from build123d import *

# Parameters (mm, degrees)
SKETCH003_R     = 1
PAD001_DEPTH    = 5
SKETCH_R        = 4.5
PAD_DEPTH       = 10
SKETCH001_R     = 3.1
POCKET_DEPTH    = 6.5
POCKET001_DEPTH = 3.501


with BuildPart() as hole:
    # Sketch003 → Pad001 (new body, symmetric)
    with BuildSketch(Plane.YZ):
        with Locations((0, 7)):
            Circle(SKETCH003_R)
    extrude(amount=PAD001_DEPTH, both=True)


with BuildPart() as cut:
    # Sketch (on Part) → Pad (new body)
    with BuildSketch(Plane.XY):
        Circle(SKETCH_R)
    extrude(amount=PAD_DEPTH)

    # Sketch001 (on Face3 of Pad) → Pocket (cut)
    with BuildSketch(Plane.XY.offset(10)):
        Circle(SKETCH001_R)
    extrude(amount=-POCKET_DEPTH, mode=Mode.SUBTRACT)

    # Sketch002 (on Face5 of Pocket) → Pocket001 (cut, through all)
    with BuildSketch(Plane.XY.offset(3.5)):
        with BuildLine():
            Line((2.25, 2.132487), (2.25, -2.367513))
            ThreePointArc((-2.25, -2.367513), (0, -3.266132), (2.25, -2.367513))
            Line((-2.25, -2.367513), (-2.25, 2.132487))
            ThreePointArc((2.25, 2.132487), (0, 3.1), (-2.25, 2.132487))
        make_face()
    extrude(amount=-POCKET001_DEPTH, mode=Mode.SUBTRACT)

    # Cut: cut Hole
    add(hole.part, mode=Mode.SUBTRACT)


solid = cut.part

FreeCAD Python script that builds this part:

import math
import FreeCAD as App
import Part
import Sketcher
Q = App.Units.Quantity

doc = App.newDocument("Part")
body = doc.addObject("PartDesign::Body", "Body")

# Sketch on YZ plane
sketch1 = doc.addObject("Sketcher::SketchObject", "Sketch")
body.addObject(sketch1)
sketch1.AttachmentSupport = (doc.YZ_Plane, [""])
sketch1.MapMode = "FlatFace"
sketch1.addGeometry(Part.Circle(App.Vector(0, 7, 0), App.Vector(0, 0, 1), 1), False)
sketch1.addConstraint([
    Sketcher.Constraint("PointOnObject", 0, 3, -2),
    Sketcher.Constraint("Diameter", 0, Q("2 mm")),
    Sketcher.Constraint("DistanceY", -1, 1, 0, 3, Q("7 mm")),
])
pad1 = doc.addObject("PartDesign::Pad", "Pad")
body.addObject(pad1)
pad1.Profile = sketch1
pad1.Length = 10
pad1.Midplane = True
body2 = doc.addObject("PartDesign::Body", "Body001")

# Sketch on XY plane
sketch2 = doc.addObject("Sketcher::SketchObject", "Sketch001")
body2.addObject(sketch2)
sketch2.AttachmentSupport = (doc.getObject("XY_Plane001"), [""])
sketch2.MapMode = "FlatFace"
sketch2.addGeometry(Part.Circle(App.Vector(0, 0, 0), App.Vector(0, 0, 1), 4.5), False)
sketch2.addConstraint([
    Sketcher.Constraint("Coincident", 0, 3, -1, 1),
    Sketcher.Constraint("Diameter", 0, Q("9 mm")),
])
pad2 = doc.addObject("PartDesign::Pad", "Pad001")
body2.addObject(pad2)
pad2.Profile = sketch2
pad2.Length = 10

# Sketch on XY plane
sketch3 = doc.addObject("Sketcher::SketchObject", "Sketch002")
body2.addObject(sketch3)
sketch3.AttachmentSupport = (doc.getObject("XY_Plane001"), [""])
sketch3.MapMode = "FlatFace"
sketch3.AttachmentOffset = App.Placement(App.Vector(0, 0, 10), App.Rotation())
sketch3.addGeometry(Part.Circle(App.Vector(0, 0, 0), App.Vector(0, 0, 1), 3.1), False)
sketch3.addConstraint([
    Sketcher.Constraint("Coincident", 0, 3, -1, 1),
    Sketcher.Constraint("Diameter", 0, Q("6.2 mm")),
])
pocket1 = doc.addObject("PartDesign::Pocket", "Pocket")
body2.addObject(pocket1)
pocket1.Profile = sketch3
pocket1.Length = 6.5

# Sketch on XY plane
sketch4 = doc.addObject("Sketcher::SketchObject", "Sketch003")
body2.addObject(sketch4)
sketch4.AttachmentSupport = (doc.getObject("XY_Plane001"), [""])
sketch4.MapMode = "FlatFace"
sketch4.AttachmentOffset = App.Placement(App.Vector(0, 0, 3.5), App.Rotation())
sketch4.addGeometry([
    Part.LineSegment(App.Vector(2.2, -2.4, 0), App.Vector(2.2, 2.1, 0)),
    Part.ArcOfCircle(Part.Circle(App.Vector(0, 0, 0), App.Vector(0, 0, 1), 3.1), math.radians(43), math.radians(137)),
    Part.LineSegment(App.Vector(-2.2, 2.1, 0), App.Vector(-2.2, -2.4, 0)),
    Part.ArcOfCircle(Part.Circle(App.Vector(0, 0, 0), App.Vector(0, 0, 1), 3.3), math.radians(-134), math.radians(-46)),
], False)
sketch4.addConstraint([
    Sketcher.Constraint("Coincident", 0, 2, 1, 1),
    Sketcher.Constraint("Coincident", 1, 2, 2, 1),
    Sketcher.Constraint("Coincident", 2, 2, 3, 1),
    Sketcher.Constraint("Coincident", 3, 2, 0, 1),
    Sketcher.Constraint("Vertical", 0),
    Sketcher.Constraint("Vertical", 2),
    Sketcher.Constraint("Coincident", 1, 3, -1, 1),
    Sketcher.Constraint("Coincident", 3, 3, -1, 1),
    Sketcher.Constraint("Horizontal", 0, 2, 1, 2),
    Sketcher.Constraint("Radius", 1, Q("3.1 mm")),
    Sketcher.Constraint("DistanceY", 0, 1, 0, 2, Q("4.5 mm")),
    Sketcher.Constraint("DistanceX", 1, 2, 0, 2, Q("4.5 mm")),
])
pocket2 = doc.addObject("PartDesign::Pocket", "Pocket001")
body2.addObject(pocket2)
pocket2.Profile = sketch4
pocket2.Type = "ThroughAll"
doc.recompute()

boolean = doc.addObject("PartDesign::Boolean", "Boolean")
body2.addObject(boolean)
boolean.Type = "Cut"
boolean.addObjects([body])

doc.recompute()
